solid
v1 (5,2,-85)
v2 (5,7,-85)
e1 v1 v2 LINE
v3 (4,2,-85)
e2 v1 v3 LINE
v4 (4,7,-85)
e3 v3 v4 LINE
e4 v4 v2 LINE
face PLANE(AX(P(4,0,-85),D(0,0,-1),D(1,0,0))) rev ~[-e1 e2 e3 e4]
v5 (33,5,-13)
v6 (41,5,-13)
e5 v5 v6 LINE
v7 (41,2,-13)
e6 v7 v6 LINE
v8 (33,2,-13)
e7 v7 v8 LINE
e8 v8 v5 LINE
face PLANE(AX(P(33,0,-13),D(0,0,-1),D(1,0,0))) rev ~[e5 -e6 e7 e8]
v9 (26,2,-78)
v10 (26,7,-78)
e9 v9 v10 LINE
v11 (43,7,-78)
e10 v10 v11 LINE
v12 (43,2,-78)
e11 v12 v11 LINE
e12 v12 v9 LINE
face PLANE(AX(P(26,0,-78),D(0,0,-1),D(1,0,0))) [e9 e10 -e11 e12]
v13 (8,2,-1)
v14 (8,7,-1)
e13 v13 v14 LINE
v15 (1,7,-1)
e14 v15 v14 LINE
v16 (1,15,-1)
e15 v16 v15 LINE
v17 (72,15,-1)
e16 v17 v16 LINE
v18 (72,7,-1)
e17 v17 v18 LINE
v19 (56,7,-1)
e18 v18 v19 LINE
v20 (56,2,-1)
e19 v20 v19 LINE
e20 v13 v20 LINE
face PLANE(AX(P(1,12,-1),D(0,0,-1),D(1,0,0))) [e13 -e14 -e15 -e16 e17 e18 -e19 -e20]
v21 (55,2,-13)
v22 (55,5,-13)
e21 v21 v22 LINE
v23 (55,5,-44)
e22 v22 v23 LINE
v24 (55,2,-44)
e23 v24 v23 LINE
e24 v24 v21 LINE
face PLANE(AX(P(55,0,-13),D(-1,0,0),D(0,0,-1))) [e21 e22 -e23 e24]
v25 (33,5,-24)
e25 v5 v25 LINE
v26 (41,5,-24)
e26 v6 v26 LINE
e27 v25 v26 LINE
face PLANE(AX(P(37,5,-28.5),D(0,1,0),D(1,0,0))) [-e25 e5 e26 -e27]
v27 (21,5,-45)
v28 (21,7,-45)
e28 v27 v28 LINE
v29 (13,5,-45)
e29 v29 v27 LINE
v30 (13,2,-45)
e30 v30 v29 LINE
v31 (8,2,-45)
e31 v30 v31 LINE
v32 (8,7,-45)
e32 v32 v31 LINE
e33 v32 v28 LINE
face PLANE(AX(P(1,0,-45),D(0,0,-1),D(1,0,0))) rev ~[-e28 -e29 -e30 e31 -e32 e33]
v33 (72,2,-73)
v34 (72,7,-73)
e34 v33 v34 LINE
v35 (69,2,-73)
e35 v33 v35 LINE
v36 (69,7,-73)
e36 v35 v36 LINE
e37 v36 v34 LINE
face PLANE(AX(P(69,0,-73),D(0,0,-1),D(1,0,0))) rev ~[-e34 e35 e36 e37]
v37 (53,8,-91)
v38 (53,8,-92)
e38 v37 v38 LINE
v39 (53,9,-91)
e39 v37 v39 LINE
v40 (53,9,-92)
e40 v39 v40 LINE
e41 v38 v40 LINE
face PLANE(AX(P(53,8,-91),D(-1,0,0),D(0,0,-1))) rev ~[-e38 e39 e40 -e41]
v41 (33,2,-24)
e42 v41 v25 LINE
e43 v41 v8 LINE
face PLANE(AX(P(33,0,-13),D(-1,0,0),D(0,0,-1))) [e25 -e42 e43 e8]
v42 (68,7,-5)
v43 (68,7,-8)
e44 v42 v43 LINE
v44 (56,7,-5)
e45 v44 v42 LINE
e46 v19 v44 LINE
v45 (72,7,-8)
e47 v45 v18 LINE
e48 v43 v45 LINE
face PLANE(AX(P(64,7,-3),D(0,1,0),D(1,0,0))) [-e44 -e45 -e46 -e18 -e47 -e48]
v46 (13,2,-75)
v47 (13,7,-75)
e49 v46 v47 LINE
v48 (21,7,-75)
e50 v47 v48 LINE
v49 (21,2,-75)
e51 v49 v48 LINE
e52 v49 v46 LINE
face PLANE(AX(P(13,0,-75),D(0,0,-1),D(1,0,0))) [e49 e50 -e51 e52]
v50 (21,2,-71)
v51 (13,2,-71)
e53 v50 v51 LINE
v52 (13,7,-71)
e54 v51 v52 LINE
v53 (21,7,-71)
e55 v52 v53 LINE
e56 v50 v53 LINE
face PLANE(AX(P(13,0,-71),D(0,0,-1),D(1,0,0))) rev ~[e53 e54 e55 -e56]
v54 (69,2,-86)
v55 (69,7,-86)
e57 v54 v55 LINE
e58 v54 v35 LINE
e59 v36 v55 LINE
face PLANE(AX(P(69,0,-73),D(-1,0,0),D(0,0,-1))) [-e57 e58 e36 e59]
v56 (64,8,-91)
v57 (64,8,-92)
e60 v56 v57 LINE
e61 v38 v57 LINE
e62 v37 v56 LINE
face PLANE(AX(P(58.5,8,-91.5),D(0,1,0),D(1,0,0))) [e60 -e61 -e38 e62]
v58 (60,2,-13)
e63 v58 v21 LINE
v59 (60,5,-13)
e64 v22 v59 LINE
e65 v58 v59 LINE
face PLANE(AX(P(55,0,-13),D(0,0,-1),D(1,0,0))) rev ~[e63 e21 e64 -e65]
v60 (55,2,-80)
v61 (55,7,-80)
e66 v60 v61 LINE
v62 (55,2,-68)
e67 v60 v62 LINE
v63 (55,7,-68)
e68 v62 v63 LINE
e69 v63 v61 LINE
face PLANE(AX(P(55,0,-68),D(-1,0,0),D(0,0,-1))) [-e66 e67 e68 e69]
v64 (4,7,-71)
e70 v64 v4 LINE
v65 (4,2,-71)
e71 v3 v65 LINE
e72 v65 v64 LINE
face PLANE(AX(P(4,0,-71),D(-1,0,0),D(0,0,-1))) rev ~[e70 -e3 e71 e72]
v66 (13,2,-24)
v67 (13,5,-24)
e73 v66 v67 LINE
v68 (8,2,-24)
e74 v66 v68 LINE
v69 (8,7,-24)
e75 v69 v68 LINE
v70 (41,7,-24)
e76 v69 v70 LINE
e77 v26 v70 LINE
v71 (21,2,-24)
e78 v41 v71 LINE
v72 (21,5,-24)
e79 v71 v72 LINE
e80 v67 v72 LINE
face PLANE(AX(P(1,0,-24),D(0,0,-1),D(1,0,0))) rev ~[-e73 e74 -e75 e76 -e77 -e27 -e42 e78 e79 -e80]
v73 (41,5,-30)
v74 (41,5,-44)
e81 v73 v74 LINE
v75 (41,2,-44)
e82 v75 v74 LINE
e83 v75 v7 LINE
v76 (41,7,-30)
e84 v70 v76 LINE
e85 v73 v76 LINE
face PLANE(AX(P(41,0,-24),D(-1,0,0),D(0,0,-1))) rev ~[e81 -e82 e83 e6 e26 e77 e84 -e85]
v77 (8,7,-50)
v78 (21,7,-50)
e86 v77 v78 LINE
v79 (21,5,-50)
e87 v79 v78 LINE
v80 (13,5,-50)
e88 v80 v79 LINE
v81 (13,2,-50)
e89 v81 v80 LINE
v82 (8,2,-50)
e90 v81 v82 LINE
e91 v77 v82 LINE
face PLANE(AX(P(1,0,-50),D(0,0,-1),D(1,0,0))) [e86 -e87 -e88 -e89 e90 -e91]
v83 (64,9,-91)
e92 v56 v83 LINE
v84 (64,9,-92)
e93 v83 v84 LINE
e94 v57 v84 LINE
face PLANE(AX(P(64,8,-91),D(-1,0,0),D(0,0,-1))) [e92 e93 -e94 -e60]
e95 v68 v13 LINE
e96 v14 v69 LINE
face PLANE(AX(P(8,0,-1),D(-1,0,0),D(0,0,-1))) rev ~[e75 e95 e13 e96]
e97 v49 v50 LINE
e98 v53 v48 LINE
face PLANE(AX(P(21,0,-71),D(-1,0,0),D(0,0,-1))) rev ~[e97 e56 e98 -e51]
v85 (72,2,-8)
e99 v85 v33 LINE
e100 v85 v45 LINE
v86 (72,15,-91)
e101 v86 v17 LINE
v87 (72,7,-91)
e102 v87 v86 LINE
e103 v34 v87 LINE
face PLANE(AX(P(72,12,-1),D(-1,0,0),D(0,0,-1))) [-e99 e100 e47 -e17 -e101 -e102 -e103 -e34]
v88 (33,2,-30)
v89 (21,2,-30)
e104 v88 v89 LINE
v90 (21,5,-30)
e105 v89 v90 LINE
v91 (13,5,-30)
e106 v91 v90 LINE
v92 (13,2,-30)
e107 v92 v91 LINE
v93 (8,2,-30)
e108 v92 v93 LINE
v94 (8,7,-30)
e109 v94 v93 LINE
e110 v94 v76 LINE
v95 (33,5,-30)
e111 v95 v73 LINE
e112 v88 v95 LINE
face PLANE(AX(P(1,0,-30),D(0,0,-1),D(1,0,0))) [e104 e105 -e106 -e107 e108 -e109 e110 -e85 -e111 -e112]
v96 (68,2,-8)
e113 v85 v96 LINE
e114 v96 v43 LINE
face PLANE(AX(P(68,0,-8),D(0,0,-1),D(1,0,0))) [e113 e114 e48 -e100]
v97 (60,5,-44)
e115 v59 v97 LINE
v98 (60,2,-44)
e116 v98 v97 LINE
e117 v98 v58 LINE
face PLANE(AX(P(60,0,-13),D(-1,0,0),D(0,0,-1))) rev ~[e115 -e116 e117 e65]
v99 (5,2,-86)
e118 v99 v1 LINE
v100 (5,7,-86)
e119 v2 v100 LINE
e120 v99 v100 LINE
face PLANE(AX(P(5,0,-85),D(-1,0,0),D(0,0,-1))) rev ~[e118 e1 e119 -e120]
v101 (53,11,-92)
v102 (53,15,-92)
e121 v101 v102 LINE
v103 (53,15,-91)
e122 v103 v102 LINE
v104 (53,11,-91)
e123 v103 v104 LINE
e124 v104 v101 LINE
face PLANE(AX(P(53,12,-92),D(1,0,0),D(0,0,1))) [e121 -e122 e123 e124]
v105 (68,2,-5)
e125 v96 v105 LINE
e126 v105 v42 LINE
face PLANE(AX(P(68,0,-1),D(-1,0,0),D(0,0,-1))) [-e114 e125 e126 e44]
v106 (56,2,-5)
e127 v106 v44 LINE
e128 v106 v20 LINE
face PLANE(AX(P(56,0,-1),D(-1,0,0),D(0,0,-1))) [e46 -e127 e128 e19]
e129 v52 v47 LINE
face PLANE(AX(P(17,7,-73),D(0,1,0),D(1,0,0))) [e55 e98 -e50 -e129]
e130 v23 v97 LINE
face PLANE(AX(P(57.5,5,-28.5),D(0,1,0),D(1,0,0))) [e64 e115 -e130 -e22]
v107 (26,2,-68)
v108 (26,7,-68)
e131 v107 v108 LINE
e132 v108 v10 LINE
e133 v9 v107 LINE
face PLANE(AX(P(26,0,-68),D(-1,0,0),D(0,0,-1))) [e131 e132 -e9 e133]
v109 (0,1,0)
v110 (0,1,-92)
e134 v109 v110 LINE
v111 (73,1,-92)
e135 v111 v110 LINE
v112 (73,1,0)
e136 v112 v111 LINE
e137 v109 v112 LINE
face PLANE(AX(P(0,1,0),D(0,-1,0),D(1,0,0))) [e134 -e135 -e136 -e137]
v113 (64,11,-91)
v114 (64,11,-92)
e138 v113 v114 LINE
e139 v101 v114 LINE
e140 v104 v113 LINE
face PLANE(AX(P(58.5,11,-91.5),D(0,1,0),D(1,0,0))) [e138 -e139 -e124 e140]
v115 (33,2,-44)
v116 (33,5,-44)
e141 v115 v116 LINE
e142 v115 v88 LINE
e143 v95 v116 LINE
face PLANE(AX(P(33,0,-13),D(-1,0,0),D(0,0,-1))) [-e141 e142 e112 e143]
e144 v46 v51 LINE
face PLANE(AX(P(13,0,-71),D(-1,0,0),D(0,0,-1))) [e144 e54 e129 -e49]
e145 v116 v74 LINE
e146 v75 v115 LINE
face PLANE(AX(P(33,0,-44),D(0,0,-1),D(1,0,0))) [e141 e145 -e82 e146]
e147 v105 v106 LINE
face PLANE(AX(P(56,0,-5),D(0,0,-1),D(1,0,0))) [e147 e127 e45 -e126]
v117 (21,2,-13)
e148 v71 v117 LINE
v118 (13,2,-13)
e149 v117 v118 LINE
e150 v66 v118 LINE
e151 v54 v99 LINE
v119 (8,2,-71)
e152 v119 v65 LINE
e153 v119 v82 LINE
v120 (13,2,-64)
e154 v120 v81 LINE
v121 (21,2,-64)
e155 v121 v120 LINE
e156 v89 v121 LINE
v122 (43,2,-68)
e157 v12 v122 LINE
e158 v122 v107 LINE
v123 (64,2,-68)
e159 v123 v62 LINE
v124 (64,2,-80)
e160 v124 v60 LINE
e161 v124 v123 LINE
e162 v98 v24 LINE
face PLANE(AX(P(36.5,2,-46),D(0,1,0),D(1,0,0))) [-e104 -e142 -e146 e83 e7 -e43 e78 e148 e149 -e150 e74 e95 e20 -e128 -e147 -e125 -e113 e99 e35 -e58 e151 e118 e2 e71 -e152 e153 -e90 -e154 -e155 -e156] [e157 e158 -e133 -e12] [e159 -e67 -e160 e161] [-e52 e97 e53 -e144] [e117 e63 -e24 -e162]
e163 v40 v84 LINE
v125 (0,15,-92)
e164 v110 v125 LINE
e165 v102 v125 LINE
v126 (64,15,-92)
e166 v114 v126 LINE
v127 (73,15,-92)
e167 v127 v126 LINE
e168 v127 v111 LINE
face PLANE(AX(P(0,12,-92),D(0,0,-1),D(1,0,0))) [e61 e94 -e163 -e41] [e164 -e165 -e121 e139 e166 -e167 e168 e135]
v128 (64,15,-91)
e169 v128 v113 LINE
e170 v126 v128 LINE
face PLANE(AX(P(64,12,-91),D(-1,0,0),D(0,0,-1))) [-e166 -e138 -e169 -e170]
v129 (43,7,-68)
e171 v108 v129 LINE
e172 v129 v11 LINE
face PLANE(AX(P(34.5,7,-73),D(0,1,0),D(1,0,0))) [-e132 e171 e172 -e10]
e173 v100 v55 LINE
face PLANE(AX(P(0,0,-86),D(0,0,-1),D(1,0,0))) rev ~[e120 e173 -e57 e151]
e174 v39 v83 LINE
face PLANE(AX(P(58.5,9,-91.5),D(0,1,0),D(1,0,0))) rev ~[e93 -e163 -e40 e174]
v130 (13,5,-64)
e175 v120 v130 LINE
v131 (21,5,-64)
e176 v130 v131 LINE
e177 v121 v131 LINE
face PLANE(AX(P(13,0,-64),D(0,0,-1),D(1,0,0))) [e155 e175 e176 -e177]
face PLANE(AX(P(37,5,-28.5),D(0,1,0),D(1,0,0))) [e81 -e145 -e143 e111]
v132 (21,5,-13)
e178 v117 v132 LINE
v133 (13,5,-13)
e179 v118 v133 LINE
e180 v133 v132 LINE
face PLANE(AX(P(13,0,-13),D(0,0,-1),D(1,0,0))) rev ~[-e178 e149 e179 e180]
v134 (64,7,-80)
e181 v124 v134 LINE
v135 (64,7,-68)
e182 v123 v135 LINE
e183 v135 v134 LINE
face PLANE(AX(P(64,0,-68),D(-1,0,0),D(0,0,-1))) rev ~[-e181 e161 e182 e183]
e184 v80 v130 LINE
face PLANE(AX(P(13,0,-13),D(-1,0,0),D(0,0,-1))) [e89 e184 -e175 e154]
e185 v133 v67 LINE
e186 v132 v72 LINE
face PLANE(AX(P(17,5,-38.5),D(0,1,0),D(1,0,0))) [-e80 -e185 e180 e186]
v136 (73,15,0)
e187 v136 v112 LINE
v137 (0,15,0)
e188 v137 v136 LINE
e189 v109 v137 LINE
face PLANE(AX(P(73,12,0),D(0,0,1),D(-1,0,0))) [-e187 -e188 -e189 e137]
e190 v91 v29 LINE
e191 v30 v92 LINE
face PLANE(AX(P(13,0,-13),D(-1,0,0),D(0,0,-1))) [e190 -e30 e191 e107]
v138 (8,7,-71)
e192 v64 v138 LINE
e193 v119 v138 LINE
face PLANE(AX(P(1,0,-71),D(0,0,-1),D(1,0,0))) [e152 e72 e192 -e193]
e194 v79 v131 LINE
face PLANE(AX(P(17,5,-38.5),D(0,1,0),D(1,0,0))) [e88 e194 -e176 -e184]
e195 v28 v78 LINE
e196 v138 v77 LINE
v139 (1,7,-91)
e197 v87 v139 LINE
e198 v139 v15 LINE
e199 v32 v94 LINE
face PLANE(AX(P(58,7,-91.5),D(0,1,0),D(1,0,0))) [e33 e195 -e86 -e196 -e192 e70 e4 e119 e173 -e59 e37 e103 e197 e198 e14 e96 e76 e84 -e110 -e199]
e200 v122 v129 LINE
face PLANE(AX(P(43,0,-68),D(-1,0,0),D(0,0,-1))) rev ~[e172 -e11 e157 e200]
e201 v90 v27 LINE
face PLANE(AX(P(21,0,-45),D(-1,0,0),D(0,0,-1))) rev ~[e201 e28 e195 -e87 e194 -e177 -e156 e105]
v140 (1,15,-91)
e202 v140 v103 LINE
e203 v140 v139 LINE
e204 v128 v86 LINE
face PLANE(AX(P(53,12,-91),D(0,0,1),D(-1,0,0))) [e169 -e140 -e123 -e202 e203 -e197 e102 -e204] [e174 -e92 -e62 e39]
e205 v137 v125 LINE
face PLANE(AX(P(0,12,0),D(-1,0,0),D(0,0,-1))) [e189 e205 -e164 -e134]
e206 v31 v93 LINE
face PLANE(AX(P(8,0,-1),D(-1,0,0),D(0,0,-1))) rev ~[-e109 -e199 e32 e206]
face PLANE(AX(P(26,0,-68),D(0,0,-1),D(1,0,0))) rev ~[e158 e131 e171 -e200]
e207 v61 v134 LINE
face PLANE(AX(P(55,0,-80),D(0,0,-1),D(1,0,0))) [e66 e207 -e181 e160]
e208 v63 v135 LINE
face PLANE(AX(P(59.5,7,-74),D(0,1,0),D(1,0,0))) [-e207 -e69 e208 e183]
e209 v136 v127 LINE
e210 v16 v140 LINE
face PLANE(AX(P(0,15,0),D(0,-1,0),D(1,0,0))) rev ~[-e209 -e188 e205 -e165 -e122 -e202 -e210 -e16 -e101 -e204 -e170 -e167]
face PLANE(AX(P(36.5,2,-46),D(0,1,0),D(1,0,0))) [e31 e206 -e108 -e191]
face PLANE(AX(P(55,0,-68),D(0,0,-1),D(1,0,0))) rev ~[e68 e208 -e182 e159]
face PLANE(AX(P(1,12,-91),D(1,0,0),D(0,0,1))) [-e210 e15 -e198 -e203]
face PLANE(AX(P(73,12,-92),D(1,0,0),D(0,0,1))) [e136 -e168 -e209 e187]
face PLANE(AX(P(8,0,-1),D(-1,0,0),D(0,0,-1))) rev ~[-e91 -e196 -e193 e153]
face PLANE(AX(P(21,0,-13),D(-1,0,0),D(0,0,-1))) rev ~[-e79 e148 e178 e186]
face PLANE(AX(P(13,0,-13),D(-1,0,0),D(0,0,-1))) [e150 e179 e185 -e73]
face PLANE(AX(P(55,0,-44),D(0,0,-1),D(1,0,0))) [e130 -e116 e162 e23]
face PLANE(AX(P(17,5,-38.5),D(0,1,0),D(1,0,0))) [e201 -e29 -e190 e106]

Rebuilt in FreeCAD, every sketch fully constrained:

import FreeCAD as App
import Part
import Sketcher
from FreeCAD import Vector
Q = App.Units.Quantity

doc = App.newDocument("Part")
body = doc.addObject("PartDesign::Body", "Body")

# Sketch on XZ plane
sketch1 = body.newObject("Sketcher::SketchObject", "Sketch")
sketch1.AttachmentSupport = (doc.getObject("XZ_Plane"), [""])
sketch1.MapMode = "FlatFace"
sketch1.addGeometry([
    Part.LineSegment(Vector(0, -92, 0), Vector(0, 0, 0)),
    Part.LineSegment(Vector(0, 0, 0), Vector(73, 0, 0)),
    Part.LineSegment(Vector(73, 0, 0), Vector(73, -92, 0)),
    Part.LineSegment(Vector(73, -92, 0), Vector(0, -92, 0)),
], False)
sketch1.addConstraint([
    Sketcher.Constraint("Coincident", 0, 2, 1, 1),
    Sketcher.Constraint("Coincident", 1, 2, 2, 1),
    Sketcher.Constraint("Coincident", 2, 2, 3, 1),
    Sketcher.Constraint("Coincident", 3, 2, 0, 1),
    Sketcher.Constraint("Vertical", 0),
    Sketcher.Constraint("Horizontal", 1),
    Sketcher.Constraint("Vertical", 2),
    Sketcher.Constraint("Horizontal", 3),
    Sketcher.Constraint("Coincident", 0, 2, -1, 1),
    Sketcher.Constraint("DistanceX", 1, 1, 1, 2, Q("73 mm")),
    Sketcher.Constraint("DistanceY", 0, 1, 0, 2, Q("92 mm")),
])
pad1 = body.newObject("PartDesign::Pad", "Pad")
pad1.Profile = sketch1
pad1.Length = 12
pad1.Reversed = True

# Sketch on XZ plane
sketch2 = body.newObject("Sketcher::SketchObject", "Sketch001")
sketch2.AttachmentSupport = (doc.getObject("XZ_Plane"), [""])
sketch2.MapMode = "FlatFace"
sketch2.AttachmentOffset = App.Placement(Vector(0, 0, -12), App.Rotation())
sketch2.addGeometry([
    Part.LineSegment(Vector(1, -91, 0), Vector(1, -1, 0)),
    Part.LineSegment(Vector(1, -1, 0), Vector(72, -1, 0)),
    Part.LineSegment(Vector(72, -1, 0), Vector(72, -91, 0)),
    Part.LineSegment(Vector(72, -91, 0), Vector(1, -91, 0)),
], False)
sketch2.addConstraint([
    Sketcher.Constraint("Coincident", 0, 2, 1, 1),
    Sketcher.Constraint("Coincident", 1, 2, 2, 1),
    Sketcher.Constraint("Coincident", 2, 2, 3, 1),
    Sketcher.Constraint("Coincident", 3, 2, 0, 1),
    Sketcher.Constraint("Vertical", 0),
    Sketcher.Constraint("Horizontal", 1),
    Sketcher.Constraint("Vertical", 2),
    Sketcher.Constraint("Horizontal", 3),
    Sketcher.Constraint("DistanceX", 1, 1, 1, 2, Q("71 mm")),
    Sketcher.Constraint("DistanceY", 0, 1, 0, 2, Q("90 mm")),
    Sketcher.Constraint("DistanceX", -1, 1, 0, 2, Q("1 mm")),
    Sketcher.Constraint("DistanceY", 0, 2, -1, 1, Q("1 mm")),
])
pocket1 = body.newObject("PartDesign::Pocket", "Pocket")
pocket1.Profile = sketch2
pocket1.Length = 10
pocket1.Reversed = True

# Sketch on XZ plane
sketch3 = body.newObject("Sketcher::SketchObject", "Sketch002")
sketch3.AttachmentSupport = (doc.getObject("XZ_Plane"), [""])
sketch3.MapMode = "FlatFace"
sketch3.addGeometry([
    Part.LineSegment(Vector(0, -92, 0), Vector(0, -86, 0)),
    Part.LineSegment(Vector(0, -86, 0), Vector(73, -86, 0)),
    Part.LineSegment(Vector(73, -86, 0), Vector(73, -92, 0)),
    Part.LineSegment(Vector(73, -92, 0), Vector(0, -92, 0)),
], False)
sketch3.addConstraint([
    Sketcher.Constraint("Coincident", 0, 2, 1, 1),
    Sketcher.Constraint("Coincident", 1, 2, 2, 1),
    Sketcher.Constraint("Coincident", 2, 2, 3, 1),
    Sketcher.Constraint("Coincident", 3, 2, 0, 1),
    Sketcher.Constraint("Vertical", 0),
    Sketcher.Constraint("Horizontal", 1),
    Sketcher.Constraint("Vertical", 2),
    Sketcher.Constraint("Horizontal", 3),
    Sketcher.Constraint("PointOnObject", 0, 2, -2),
    Sketcher.Constraint("DistanceX", 1, 1, 1, 2, Q("73 mm")),
    Sketcher.Constraint("DistanceY", 0, 1, 0, 2, Q("6 mm")),
    Sketcher.Constraint("DistanceY", 0, 2, -1, 1, Q("86 mm")),
])
pad2 = body.newObject("PartDesign::Pad", "Pad001")
pad2.Profile = sketch3
pad2.Length = 7
pad2.Reversed = True

# Sketch on XZ plane
sketch4 = body.newObject("Sketcher::SketchObject", "Sketch003")
sketch4.AttachmentSupport = (doc.getObject("XZ_Plane"), [""])
sketch4.MapMode = "FlatFace"
sketch4.addGeometry([
    Part.LineSegment(Vector(69, -92, 0), Vector(69, -73, 0)),
    Part.LineSegment(Vector(69, -73, 0), Vector(73, -73, 0)),
    Part.LineSegment(Vector(73, -73, 0), Vector(73, -92, 0)),
    Part.LineSegment(Vector(73, -92, 0), Vector(69, -92, 0)),
], False)
sketch4.addConstraint([
    Sketcher.Constraint("Coincident", 0, 2, 1, 1),
    Sketcher.Constraint("Coincident", 1, 2, 2, 1),
    Sketcher.Constraint("Coincident", 2, 2, 3, 1),
    Sketcher.Constraint("Coincident", 3, 2, 0, 1),
    Sketcher.Constraint("Vertical", 0),
    Sketcher.Constraint("Horizontal", 1),
    Sketcher.Constraint("Vertical", 2),
    Sketcher.Constraint("Horizontal", 3),
    Sketcher.Constraint("DistanceX", 1, 1, 1, 2, Q("4 mm")),
    Sketcher.Constraint("DistanceY", 0, 1, 0, 2, Q("19 mm")),
    Sketcher.Constraint("DistanceX", -1, 1, 0, 2, Q("69 mm")),
    Sketcher.Constraint("DistanceY", 0, 2, -1, 1, Q("73 mm")),
])
pad3 = body.newObject("PartDesign::Pad", "Pad002")
pad3.Profile = sketch4
pad3.Length = 7
pad3.Reversed = True

# Sketch on XZ plane
sketch5 = body.newObject("Sketcher::SketchObject", "Sketch004")
sketch5.AttachmentSupport = (doc.getObject("XZ_Plane"), [""])
sketch5.MapMode = "FlatFace"
sketch5.addGeometry([
    Part.LineSegment(Vector(0, -92, 0), Vector(0, -71, 0)),
    Part.LineSegment(Vector(0, -71, 0), Vector(4, -71, 0)),
    Part.LineSegment(Vector(4, -71, 0), Vector(4, -92, 0)),
    Part.LineSegment(Vector(4, -92, 0), Vector(0, -92, 0)),
], False)
sketch5.addConstraint([
    Sketcher.Constraint("Coincident", 0, 2, 1, 1),
    Sketcher.Constraint("Coincident", 1, 2, 2, 1),
    Sketcher.Constraint("Coincident", 2, 2, 3, 1),
    Sketcher.Constraint("Coincident", 3, 2, 0, 1),
    Sketcher.Constraint("Vertical", 0),
    Sketcher.Constraint("Horizontal", 1),
    Sketcher.Constraint("Vertical", 2),
    Sketcher.Constraint("Horizontal", 3),
    Sketcher.Constraint("PointOnObject", 0, 2, -2),
    Sketcher.Constraint("DistanceX", 1, 1, 1, 2, Q("4 mm")),
    Sketcher.Constraint("DistanceY", 0, 1, 0, 2, Q("21 mm")),
    Sketcher.Constraint("DistanceY", 0, 2, -1, 1, Q("71 mm")),
])
pad4 = body.newObject("PartDesign::Pad", "Pad003")
pad4.Profile = sketch5
pad4.Length = 7
pad4.Reversed = True

# Sketch on XZ plane
sketch6 = body.newObject("Sketcher::SketchObject", "Sketch005")
sketch6.AttachmentSupport = (doc.getObject("XZ_Plane"), [""])
sketch6.MapMode = "FlatFace"
sketch6.addGeometry([
    Part.LineSegment(Vector(1, -71, 0), Vector(1, -59, 0)),
    Part.LineSegment(Vector(1, -59, 0), Vector(8, -59, 0)),
    Part.LineSegment(Vector(8, -59, 0), Vector(8, -71, 0)),
    Part.LineSegment(Vector(8, -71, 0), Vector(1, -71, 0)),
], False)
sketch6.addConstraint([
    Sketcher.Constraint("Coincident", 0, 2, 1, 1),
    Sketcher.Constraint("Coincident", 1, 2, 2, 1),
    Sketcher.Constraint("Coincident", 2, 2, 3, 1),
    Sketcher.Constraint("Coincident", 3, 2, 0, 1),
    Sketcher.Constraint("Vertical", 0),
    Sketcher.Constraint("Horizontal", 1),
    Sketcher.Constraint("Vertical", 2),
    Sketcher.Constraint("Horizontal", 3),
    Sketcher.Constraint("DistanceX", 1, 1, 1, 2, Q("7 mm")),
    Sketcher.Constraint("DistanceY", 0, 1, 0, 2, Q("12 mm")),
    Sketcher.Constraint("DistanceX", -1, 1, 0, 2, Q("1 mm")),
    Sketcher.Constraint("DistanceY", 0, 2, -1, 1, Q("59 mm")),
])
pad5 = body.newObject("PartDesign::Pad", "Pad004")
pad5.Profile = sketch6
pad5.Length = 7
pad5.Reversed = True

# Sketch on XZ plane
sketch7 = body.newObject("Sketcher::SketchObject", "Sketch006")
sketch7.AttachmentSupport = (doc.getObject("XZ_Plane"), [""])
sketch7.MapMode = "FlatFace"
sketch7.addGeometry([
    Part.LineSegment(Vector(1, -59, 0), Vector(1, -1, 0)),
    Part.LineSegment(Vector(1, -1, 0), Vector(8, -1, 0)),
    Part.LineSegment(Vector(8, -1, 0), Vector(8, -59, 0)),
    Part.LineSegment(Vector(8, -59, 0), Vector(1, -59, 0)),
], False)
sketch7.addConstraint([
    Sketcher.Constraint("Coincident", 0, 2, 1, 1),
    Sketcher.Constraint("Coincident", 1, 2, 2, 1),
    Sketcher.Constraint("Coincident", 2, 2, 3, 1),
    Sketcher.Constraint("Coincident", 3, 2, 0, 1),
    Sketcher.Constraint("Vertical", 0),
    Sketcher.Constraint("Horizontal", 1),
    Sketcher.Constraint("Vertical", 2),
    Sketcher.Constraint("Horizontal", 3),
    Sketcher.Constraint("DistanceX", 1, 1, 1, 2, Q("7 mm")),
    Sketcher.Constraint("DistanceY", 0, 1, 0, 2, Q("58 mm")),
    Sketcher.Constraint("DistanceX", -1, 1, 0, 2, Q("1 mm")),
    Sketcher.Constraint("DistanceY", 0, 2, -1, 1, Q("1 mm")),
])
pad6 = body.newObject("PartDesign::Pad", "Pad005")
pad6.Profile = sketch7
pad6.Length = 7
pad6.Reversed = True

# Sketch on XZ plane
sketch8 = body.newObject("Sketcher::SketchObject", "Sketch007")
sketch8.AttachmentSupport = (doc.getObject("XZ_Plane"), [""])
sketch8.MapMode = "FlatFace"
sketch8.addGeometry([
    Part.LineSegment(Vector(1, -30, 0), Vector(1, -24, 0)),
    Part.LineSegment(Vector(1, -24, 0), Vector(41, -24, 0)),
    Part.LineSegment(Vector(41, -24, 0), Vector(41, -30, 0)),
    Part.LineSegment(Vector(41, -30, 0), Vector(1, -30, 0)),
], False)
sketch8.addConstraint([
    Sketcher.Constraint("Coincident", 0, 2, 1, 1),
    Sketcher.Constraint("Coincident", 1, 2, 2, 1),
    Sketcher.Constraint("Coincident", 2, 2, 3, 1),
    Sketcher.Constraint("Coincident", 3, 2, 0, 1),
    Sketcher.Constraint("Vertical", 0),
    Sketcher.Constraint("Horizontal", 1),
    Sketcher.Constraint("Vertical", 2),
    Sketcher.Constraint("Horizontal", 3),
    Sketcher.Constraint("DistanceX", 1, 1, 1, 2, Q("40 mm")),
    Sketcher.Constraint("DistanceY", 0, 1, 0, 2, Q("6 mm")),
    Sketcher.Constraint("DistanceX", -1, 1, 0, 2, Q("1 mm")),
    Sketcher.Constraint("DistanceY", 0, 2, -1, 1, Q("24 mm")),
])
pad7 = body.newObject("PartDesign::Pad", "Pad006")
pad7.Profile = sketch8
pad7.Length = 7
pad7.Reversed = True

# Sketch on XZ plane
sketch9 = body.newObject("Sketcher::SketchObject", "Sketch008")
sketch9.AttachmentSupport = (doc.getObject("XZ_Plane"), [""])
sketch9.MapMode = "FlatFace"
sketch9.addGeometry([
    Part.LineSegment(Vector(1, -50, 0), Vector(1, -45, 0)),
    Part.LineSegment(Vector(1, -45, 0), Vector(21, -45, 0)),
    Part.LineSegment(Vector(21, -45, 0), Vector(21, -50, 0)),
    Part.LineSegment(Vector(21, -50, 0), Vector(1, -50, 0)),
], False)
sketch9.addConstraint([
    Sketcher.Constraint("Coincident", 0, 2, 1, 1),
    Sketcher.Constraint("Coincident", 1, 2, 2, 1),
    Sketcher.Constraint("Coincident", 2, 2, 3, 1),
    Sketcher.Constraint("Coincident", 3, 2, 0, 1),
    Sketcher.Constraint("Vertical", 0),
    Sketcher.Constraint("Horizontal", 1),
    Sketcher.Constraint("Vertical", 2),
    Sketcher.Constraint("Horizontal", 3),
    Sketcher.Constraint("DistanceX", 1, 1, 1, 2, Q("20 mm")),
    Sketcher.Constraint("DistanceY", 0, 1, 0, 2, Q("5 mm")),
    Sketcher.Constraint("DistanceX", -1, 1, 0, 2, Q("1 mm")),
    Sketcher.Constraint("DistanceY", 0, 2, -1, 1, Q("45 mm")),
])
pad8 = body.newObject("PartDesign::Pad", "Pad007")
pad8.Profile = sketch9
pad8.Length = 7
pad8.Reversed = True

# Sketch on XZ plane
sketch10 = body.newObject("Sketcher::SketchObject", "Sketch009")
sketch10.AttachmentSupport = (doc.getObject("XZ_Plane"), [""])
sketch10.MapMode = "FlatFace"
sketch10.addGeometry([
    Part.LineSegment(Vector(56, -5, 0), Vector(56, -1, 0)),
    Part.LineSegment(Vector(56, -1, 0), Vector(72, -1, 0)),
    Part.LineSegment(Vector(72, -1, 0), Vector(72, -5, 0)),
    Part.LineSegment(Vector(72, -5, 0), Vector(56, -5, 0)),
], False)
sketch10.addConstraint([
    Sketcher.Constraint("Coincident", 0, 2, 1, 1),
    Sketcher.Constraint("Coincident", 1, 2, 2, 1),
    Sketcher.Constraint("Coincident", 2, 2, 3, 1),
    Sketcher.Constraint("Coincident", 3, 2, 0, 1),
    Sketcher.Constraint("Vertical", 0),
    Sketcher.Constraint("Horizontal", 1),
    Sketcher.Constraint("Vertical", 2),
    Sketcher.Constraint("Horizontal", 3),
    Sketcher.Constraint("DistanceX", 1, 1, 1, 2, Q("16 mm")),
    Sketcher.Constraint("DistanceY", 0, 1, 0, 2, Q("4 mm")),
    Sketcher.Constraint("DistanceX", -1, 1, 0, 2, Q("56 mm")),
    Sketcher.Constraint("DistanceY", 0, 2, -1, 1, Q("1 mm")),
])
pad9 = body.newObject("PartDesign::Pad", "Pad008")
pad9.Profile = sketch10
pad9.Length = 7
pad9.Reversed = True

# Sketch on XZ plane
sketch11 = body.newObject("Sketcher::SketchObject", "Sketch010")
sketch11.AttachmentSupport = (doc.getObject("XZ_Plane"), [""])
sketch11.MapMode = "FlatFace"
sketch11.addGeometry([
    Part.LineSegment(Vector(68, -8, 0), Vector(68, -1, 0)),
    Part.LineSegment(Vector(68, -1, 0), Vector(72, -1, 0)),
    Part.LineSegment(Vector(72, -1, 0), Vector(72, -8, 0)),
    Part.LineSegment(Vector(72, -8, 0), Vector(68, -8, 0)),
], False)
sketch11.addConstraint([
    Sketcher.Constraint("Coincident", 0, 2, 1, 1),
    Sketcher.Constraint("Coincident", 1, 2, 2, 1),
    Sketcher.Constraint("Coincident", 2, 2, 3, 1),
    Sketcher.Constraint("Coincident", 3, 2, 0, 1),
    Sketcher.Constraint("Vertical", 0),
    Sketcher.Constraint("Horizontal", 1),
    Sketcher.Constraint("Vertical", 2),
    Sketcher.Constraint("Horizontal", 3),
    Sketcher.Constraint("DistanceX", 1, 1, 1, 2, Q("4 mm")),
    Sketcher.Constraint("DistanceY", 0, 1, 0, 2, Q("7 mm")),
    Sketcher.Constraint("DistanceX", -1, 1, 0, 2, Q("68 mm")),
    Sketcher.Constraint("DistanceY", 0, 2, -1, 1, Q("1 mm")),
])
pad10 = body.newObject("PartDesign::Pad", "Pad009")
pad10.Profile = sketch11
pad10.Length = 7
pad10.Reversed = True

# Sketch on XZ plane
sketch12 = body.newObject("Sketcher::SketchObject", "Sketch011")
sketch12.AttachmentSupport = (doc.getObject("XZ_Plane"), [""])
sketch12.MapMode = "FlatFace"
sketch12.addGeometry([
    Part.LineSegment(Vector(55, -44, 0), Vector(55, -13, 0)),
    Part.LineSegment(Vector(55, -13, 0), Vector(60, -13, 0)),
    Part.LineSegment(Vector(60, -13, 0), Vector(60, -44, 0)),
    Part.LineSegment(Vector(60, -44, 0), Vector(55, -44, 0)),
], False)
sketch12.addConstraint([
    Sketcher.Constraint("Coincident", 0, 2, 1, 1),
    Sketcher.Constraint("Coincident", 1, 2, 2, 1),
    Sketcher.Constraint("Coincident", 2, 2, 3, 1),
    Sketcher.Constraint("Coincident", 3, 2, 0, 1),
    Sketcher.Constraint("Vertical", 0),
    Sketcher.Constraint("Horizontal", 1),
    Sketcher.Constraint("Vertical", 2),
    Sketcher.Constraint("Horizontal", 3),
    Sketcher.Constraint("DistanceX", 1, 1, 1, 2, Q("5 mm")),
    Sketcher.Constraint("DistanceY", 0, 1, 0, 2, Q("31 mm")),
    Sketcher.Constraint("DistanceX", -1, 1, 0, 2, Q("55 mm")),
    Sketcher.Constraint("DistanceY", 0, 2, -1, 1, Q("13 mm")),
])
pad11 = body.newObject("PartDesign::Pad", "Pad010")
pad11.Profile = sketch12
pad11.Length = 5
pad11.Reversed = True

# Sketch on XZ plane
sketch13 = body.newObject("Sketcher::SketchObject", "Sketch012")
sketch13.AttachmentSupport = (doc.getObject("XZ_Plane"), [""])
sketch13.MapMode = "FlatFace"
sketch13.addGeometry([
    Part.LineSegment(Vector(55, -80, 0), Vector(55, -68, 0)),
    Part.LineSegment(Vector(55, -68, 0), Vector(64, -68, 0)),
    Part.LineSegment(Vector(64, -68, 0), Vector(64, -80, 0)),
    Part.LineSegment(Vector(64, -80, 0), Vector(55, -80, 0)),
], False)
sketch13.addConstraint([
    Sketcher.Constraint("Coincident", 0, 2, 1, 1),
    Sketcher.Constraint("Coincident", 1, 2, 2, 1),
    Sketcher.Constraint("Coincident", 2, 2, 3, 1),
    Sketcher.Constraint("Coincident", 3, 2, 0, 1),
    Sketcher.Constraint("Vertical", 0),
    Sketcher.Constraint("Horizontal", 1),
    Sketcher.Constraint("Vertical", 2),
    Sketcher.Constraint("Horizontal", 3),
    Sketcher.Constraint("DistanceX", 1, 1, 1, 2, Q("9 mm")),
    Sketcher.Constraint("DistanceY", 0, 1, 0, 2, Q("12 mm")),
    Sketcher.Constraint("DistanceX", -1, 1, 0, 2, Q("55 mm")),
    Sketcher.Constraint("DistanceY", 0, 2, -1, 1, Q("68 mm")),
])
pad12 = body.newObject("PartDesign::Pad", "Pad011")
pad12.Profile = sketch13
pad12.Length = 7
pad12.Reversed = True

# Sketch on XZ plane
sketch14 = body.newObject("Sketcher::SketchObject", "Sketch013")
sketch14.AttachmentSupport = (doc.getObject("XZ_Plane"), [""])
sketch14.MapMode = "FlatFace"
sketch14.addGeometry([
    Part.LineSegment(Vector(26, -78, 0), Vector(26, -68, 0)),
    Part.LineSegment(Vector(26, -68, 0), Vector(43, -68, 0)),
    Part.LineSegment(Vector(43, -68, 0), Vector(43, -78, 0)),
    Part.LineSegment(Vector(43, -78, 0), Vector(26, -78, 0)),
], False)
sketch14.addConstraint([
    Sketcher.Constraint("Coincident", 0, 2, 1, 1),
    Sketcher.Constraint("Coincident", 1, 2, 2, 1),
    Sketcher.Constraint("Coincident", 2, 2, 3, 1),
    Sketcher.Constraint("Coincident", 3, 2, 0, 1),
    Sketcher.Constraint("Vertical", 0),
    Sketcher.Constraint("Horizontal", 1),
    Sketcher.Constraint("Vertical", 2),
    Sketcher.Constraint("Horizontal", 3),
    Sketcher.Constraint("DistanceX", 1, 1, 1, 2, Q("17 mm")),
    Sketcher.Constraint("DistanceY", 0, 1, 0, 2, Q("10 mm")),
    Sketcher.Constraint("DistanceX", -1, 1, 0, 2, Q("26 mm")),
    Sketcher.Constraint("DistanceY", 0, 2, -1, 1, Q("68 mm")),
])
pad13 = body.newObject("PartDesign::Pad", "Pad012")
pad13.Profile = sketch14
pad13.Length = 7
pad13.Reversed = True

# Sketch on XZ plane
sketch15 = body.newObject("Sketcher::SketchObject", "Sketch014")
sketch15.AttachmentSupport = (doc.getObject("XZ_Plane"), [""])
sketch15.MapMode = "FlatFace"
sketch15.addGeometry([
    Part.LineSegment(Vector(13, -75, 0), Vector(13, -71, 0)),
    Part.LineSegment(Vector(13, -71, 0), Vector(21, -71, 0)),
    Part.LineSegment(Vector(21, -71, 0), Vector(21, -75, 0)),
    Part.LineSegment(Vector(21, -75, 0), Vector(13, -75, 0)),
], False)
sketch15.addConstraint([
    Sketcher.Constraint("Coincident", 0, 2, 1, 1),
    Sketcher.Constraint("Coincident", 1, 2, 2, 1),
    Sketcher.Constraint("Coincident", 2, 2, 3, 1),
    Sketcher.Constraint("Coincident", 3, 2, 0, 1),
    Sketcher.Constraint("Vertical", 0),
    Sketcher.Constraint("Horizontal", 1),
    Sketcher.Constraint("Vertical", 2),
    Sketcher.Constraint("Horizontal", 3),
    Sketcher.Constraint("DistanceX", 1, 1, 1, 2, Q("8 mm")),
    Sketcher.Constraint("DistanceY", 0, 1, 0, 2, Q("4 mm")),
    Sketcher.Constraint("DistanceX", -1, 1, 0, 2, Q("13 mm")),
    Sketcher.Constraint("DistanceY", 0, 2, -1, 1, Q("71 mm")),
])
pad14 = body.newObject("PartDesign::Pad", "Pad013")
pad14.Profile = sketch15
pad14.Length = 7
pad14.Reversed = True

# Sketch on XZ plane
sketch16 = body.newObject("Sketcher::SketchObject", "Sketch015")
sketch16.AttachmentSupport = (doc.getObject("XZ_Plane"), [""])
sketch16.MapMode = "FlatFace"
sketch16.addGeometry([
    Part.LineSegment(Vector(33, -44, 0), Vector(33, -13, 0)),
    Part.LineSegment(Vector(33, -13, 0), Vector(41, -13, 0)),
    Part.LineSegment(Vector(41, -13, 0), Vector(41, -44, 0)),
    Part.LineSegment(Vector(41, -44, 0), Vector(33, -44, 0)),
], False)
sketch16.addConstraint([
    Sketcher.Constraint("Coincident", 0, 2, 1, 1),
    Sketcher.Constraint("Coincident", 1, 2, 2, 1),
    Sketcher.Constraint("Coincident", 2, 2, 3, 1),
    Sketcher.Constraint("Coincident", 3, 2, 0, 1),
    Sketcher.Constraint("Vertical", 0),
    Sketcher.Constraint("Horizontal", 1),
    Sketcher.Constraint("Vertical", 2),
    Sketcher.Constraint("Horizontal", 3),
    Sketcher.Constraint("DistanceX", 1, 1, 1, 2, Q("8 mm")),
    Sketcher.Constraint("DistanceY", 0, 1, 0, 2, Q("31 mm")),
    Sketcher.Constraint("DistanceX", -1, 1, 0, 2, Q("33 mm")),
    Sketcher.Constraint("DistanceY", 0, 2, -1, 1, Q("13 mm")),
])
pad15 = body.newObject("PartDesign::Pad", "Pad014")
pad15.Profile = sketch16
pad15.Length = 5
pad15.Reversed = True

# Sketch on XZ plane
sketch17 = body.newObject("Sketcher::SketchObject", "Sketch016")
sketch17.AttachmentSupport = (doc.getObject("XZ_Plane"), [""])
sketch17.MapMode = "FlatFace"
sketch17.AttachmentOffset = App.Placement(Vector(0, 0, -12), App.Rotation())
sketch17.addGeometry([
    Part.LineSegment(Vector(53, -92, 0), Vector(53, -91, 0)),
    Part.LineSegment(Vector(53, -91, 0), Vector(63, -91, 0)),
    Part.LineSegment(Vector(63, -91, 0), Vector(63, -92, 0)),
    Part.LineSegment(Vector(63, -92, 0), Vector(53, -92, 0)),
], False)
sketch17.addConstraint([
    Sketcher.Constraint("Coincident", 0, 2, 1, 1),
    Sketcher.Constraint("Coincident", 1, 2, 2, 1),
    Sketcher.Constraint("Coincident", 2, 2, 3, 1),
    Sketcher.Constraint("Coincident", 3, 2, 0, 1),
    Sketcher.Constraint("Vertical", 0),
    Sketcher.Constraint("Horizontal", 1),
    Sketcher.Constraint("Vertical", 2),
    Sketcher.Constraint("Horizontal", 3),
    Sketcher.Constraint("DistanceX", 1, 1, 1, 2, Q("10 mm")),
    Sketcher.Constraint("DistanceY", 0, 1, 0, 2, Q("1 mm")),
    Sketcher.Constraint("DistanceX", -1, 1, 0, 2, Q("53 mm")),
    Sketcher.Constraint("DistanceY", 0, 2, -1, 1, Q("91 mm")),
])
pocket2 = body.newObject("PartDesign::Pocket", "Pocket001")
pocket2.Profile = sketch17
pocket2.Length = 5
pocket2.Reversed = True

# Sketch on XZ plane
sketch18 = body.newObject("Sketcher::SketchObject", "Sketch017")
sketch18.AttachmentSupport = (doc.getObject("XZ_Plane"), [""])
sketch18.MapMode = "FlatFace"
sketch18.addGeometry([
    Part.LineSegment(Vector(13, -64, 0), Vector(13, -13, 0)),
    Part.LineSegment(Vector(13, -13, 0), Vector(21, -13, 0)),
    Part.LineSegment(Vector(21, -13, 0), Vector(21, -64, 0)),
    Part.LineSegment(Vector(21, -64, 0), Vector(13, -64, 0)),
], False)
sketch18.addConstraint([
    Sketcher.Constraint("Coincident", 0, 2, 1, 1),
    Sketcher.Constraint("Coincident", 1, 2, 2, 1),
    Sketcher.Constraint("Coincident", 2, 2, 3, 1),
    Sketcher.Constraint("Coincident", 3, 2, 0, 1),
    Sketcher.Constraint("Vertical", 0),
    Sketcher.Constraint("Horizontal", 1),
    Sketcher.Constraint("Vertical", 2),
    Sketcher.Constraint("Horizontal", 3),
    Sketcher.Constraint("DistanceX", 1, 1, 1, 2, Q("8 mm")),
    Sketcher.Constraint("DistanceY", 0, 1, 0, 2, Q("51 mm")),
    Sketcher.Constraint("DistanceX", -1, 1, 0, 2, Q("13 mm")),
    Sketcher.Constraint("DistanceY", 0, 2, -1, 1, Q("13 mm")),
])
pad16 = body.newObject("PartDesign::Pad", "Pad015")
pad16.Profile = sketch18
pad16.Length = 5
pad16.Reversed = True

# Sketch on XZ plane
sketch19 = body.newObject("Sketcher::SketchObject", "Sketch018")
sketch19.AttachmentSupport = (doc.getObject("XZ_Plane"), [""])
sketch19.MapMode = "FlatFace"
sketch19.AttachmentOffset = App.Placement(Vector(0, 0, -12), App.Rotation())
sketch19.addGeometry([
    Part.LineSegment(Vector(53, -92, 0), Vector(53, -91, 0)),
    Part.LineSegment(Vector(53, -91, 0), Vector(63, -91, 0)),
    Part.LineSegment(Vector(63, -91, 0), Vector(63, -92, 0)),
    Part.LineSegment(Vector(63, -92, 0), Vector(53, -92, 0)),
], False)
sketch19.addConstraint([
    Sketcher.Constraint("Coincident", 0, 2, 1, 1),
    Sketcher.Constraint("Coincident", 1, 2, 2, 1),
    Sketcher.Constraint("Coincident", 2, 2, 3, 1),
    Sketcher.Constraint("Coincident", 3, 2, 0, 1),
    Sketcher.Constraint("Vertical", 0),
    Sketcher.Constraint("Horizontal", 1),
    Sketcher.Constraint("Vertical", 2),
    Sketcher.Constraint("Horizontal", 3),
    Sketcher.Constraint("DistanceX", 1, 1, 1, 2, Q("10 mm")),
    Sketcher.Constraint("DistanceY", 0, 1, 0, 2, Q("1 mm")),
    Sketcher.Constraint("DistanceX", -1, 1, 0, 2, Q("53 mm")),
    Sketcher.Constraint("DistanceY", 0, 2, -1, 1, Q("91 mm")),
])
pad17 = body.newObject("PartDesign::Pad", "Pad016")
pad17.Profile = sketch19
pad17.Length = 10

# Sketch on XZ plane
sketch20 = body.newObject("Sketcher::SketchObject", "Sketch019")
sketch20.AttachmentSupport = (doc.getObject("XZ_Plane"), [""])
sketch20.MapMode = "FlatFace"
sketch20.AttachmentOffset = App.Placement(Vector(0, 0, -12), App.Rotation())
sketch20.addGeometry([
    Part.LineSegment(Vector(53, -92, 0), Vector(53, -91, 0)),
    Part.LineSegment(Vector(53, -91, 0), Vector(64, -91, 0)),
    Part.LineSegment(Vector(64, -91, 0), Vector(64, -92, 0)),
    Part.LineSegment(Vector(64, -92, 0), Vector(53, -92, 0)),
], False)
sketch20.addConstraint([
    Sketcher.Constraint("Coincident", 0, 2, 1, 1),
    Sketcher.Constraint("Coincident", 1, 2, 2, 1),
    Sketcher.Constraint("Coincident", 2, 2, 3, 1),
    Sketcher.Constraint("Coincident", 3, 2, 0, 1),
    Sketcher.Constraint("Vertical", 0),
    Sketcher.Constraint("Horizontal", 1),
    Sketcher.Constraint("Vertical", 2),
    Sketcher.Constraint("Horizontal", 3),
    Sketcher.Constraint("DistanceX", 1, 1, 1, 2, Q("11 mm")),
    Sketcher.Constraint("DistanceY", 0, 1, 0, 2, Q("1 mm")),
    Sketcher.Constraint("DistanceX", -1, 1, 0, 2, Q("53 mm")),
    Sketcher.Constraint("DistanceY", 0, 2, -1, 1, Q("91 mm")),
])
pocket3 = body.newObject("PartDesign::Pocket", "Pocket002")
pocket3.Profile = sketch20
pocket3.Length = 1
pocket3.Reversed = True

# Sketch on XZ plane
sketch21 = body.newObject("Sketcher::SketchObject", "Sketch020")
sketch21.AttachmentSupport = (doc.getObject("XZ_Plane"), [""])
sketch21.MapMode = "FlatFace"
sketch21.AttachmentOffset = App.Placement(Vector(0, 0, -8), App.Rotation())
sketch21.addGeometry([
    Part.LineSegment(Vector(53, -92, 0), Vector(53, -91, 0)),
    Part.LineSegment(Vector(53, -91, 0), Vector(64, -91, 0)),
    Part.LineSegment(Vector(64, -91, 0), Vector(64, -92, 0)),
    Part.LineSegment(Vector(64, -92, 0), Vector(53, -92, 0)),
], False)
sketch21.addConstraint([
    Sketcher.Constraint("Coincident", 0, 2, 1, 1),
    Sketcher.Constraint("Coincident", 1, 2, 2, 1),
    Sketcher.Constraint("Coincident", 2, 2, 3, 1),
    Sketcher.Constraint("Coincident", 3, 2, 0, 1),
    Sketcher.Constraint("Vertical", 0),
    Sketcher.Constraint("Horizontal", 1),
    Sketcher.Constraint("Vertical", 2),
    Sketcher.Constraint("Horizontal", 3),
    Sketcher.Constraint("DistanceX", 1, 1, 1, 2, Q("11 mm")),
    Sketcher.Constraint("DistanceY", 0, 1, 0, 2, Q("1 mm")),
    Sketcher.Constraint("DistanceX", -1, 1, 0, 2, Q("53 mm")),
    Sketcher.Constraint("DistanceY", 0, 2, -1, 1, Q("91 mm")),
])
pocket4 = body.newObject("PartDesign::Pocket", "Pocket003")
pocket4.Profile = sketch21
pocket4.Length = 1

# Sketch on XZ plane
sketch22 = body.newObject("Sketcher::SketchObject", "Sketch021")
sketch22.AttachmentSupport = (doc.getObject("XZ_Plane"), [""])
sketch22.MapMode = "FlatFace"
sketch22.addGeometry([
    Part.LineSegment(Vector(4, -86, 0), Vector(4, -85, 0)),
    Part.LineSegment(Vector(4, -85, 0), Vector(5, -85, 0)),
    Part.LineSegment(Vector(5, -85, 0), Vector(5, -86, 0)),
    Part.LineSegment(Vector(5, -86, 0), Vector(4, -86, 0)),
], False)
sketch22.addConstraint([
    Sketcher.Constraint("Coincident", 0, 2, 1, 1),
    Sketcher.Constraint("Coincident", 1, 2, 2, 1),
    Sketcher.Constraint("Coincident", 2, 2, 3, 1),
    Sketcher.Constraint("Coincident", 3, 2, 0, 1),
    Sketcher.Constraint("Vertical", 0),
    Sketcher.Constraint("Horizontal", 1),
    Sketcher.Constraint("Vertical", 2),
    Sketcher.Constraint("Horizontal", 3),
    Sketcher.Constraint("Equal", 3, 0),
    Sketcher.Constraint("DistanceX", 1, 1, 1, 2, Q("1 mm")),
    Sketcher.Constraint("DistanceX", -1, 1, 0, 2, Q("4 mm")),
    Sketcher.Constraint("DistanceY", 0, 2, -1, 1, Q("85 mm")),
])
pad18 = body.newObject("PartDesign::Pad", "Pad017")
pad18.Profile = sketch22
pad18.Length = 7
pad18.Reversed = True

# Sketch on XZ plane
sketch23 = body.newObject("Sketcher::SketchObject", "Sketch022")
sketch23.AttachmentSupport = (doc.getObject("XZ_Plane"), [""])
sketch23.MapMode = "FlatFace"
sketch23.AttachmentOffset = App.Placement(Vector(0, 0, -12), App.Rotation())
sketch23.addGeometry([
    Part.Circle(Vector(4, -5, 0), Vector(0, 0, 1), 1),
    Part.Circle(Vector(70, -6, 0), Vector(0, 0, 1), 1),
    Part.Circle(Vector(70, -87, 0), Vector(0, 0, 1), 1),
    Part.Circle(Vector(4, -87, 0), Vector(0, 0, 1), 1),
], False)
sketch23.addConstraint([
    Sketcher.Constraint("Equal", 0, 1),
    Sketcher.Constraint("Equal", 1, 2),
    Sketcher.Constraint("Equal", 2, 3),
    Sketcher.Constraint("Horizontal", 2, 3, 3, 3),
    Sketcher.Constraint("Vertical", 1, 3, 2, 3),
    Sketcher.Constraint("Vertical", 0, 3, 3, 3),
    Sketcher.Constraint("Diameter", 0, Q("2 mm")),
    Sketcher.Constraint("DistanceX", -1, 1, 0, 3, Q("4 mm")),
    Sketcher.Constraint("DistanceY", 0, 3, -1, 1, Q("5 mm")),
    Sketcher.Constraint("DistanceX", -1, 1, 1, 3, Q("70 mm")),
    Sketcher.Constraint("DistanceY", 1, 3, -1, 1, Q("6 mm")),
    Sketcher.Constraint("DistanceY", 2, 3, -1, 1, Q("87 mm")),
])
pocket5 = body.newObject("PartDesign::Pocket", "Pocket004")
pocket5.Profile = sketch23
pocket5.Length = 9
pocket5.Reversed = True

# Sketch on XZ plane
sketch24 = body.newObject("Sketcher::SketchObject", "Sketch023")
sketch24.AttachmentSupport = (doc.getObject("XZ_Plane"), [""])
sketch24.MapMode = "FlatFace"
sketch24.AttachmentOffset = App.Placement(Vector(0, 0, -12), App.Rotation())
sketch24.addGeometry([
    Part.LineSegment(Vector(53, -91, 0), Vector(53, -92, 0)),  # 0
    Part.LineSegment(Vector(53, -92, 0), Vector(0, -92, 0)),  # 1
    Part.LineSegment(Vector(0, -92, 0), Vector(0, 0, 0)),  # 2
    Part.LineSegment(Vector(0, 0, 0), Vector(73, 0, 0)),  # 3
    Part.LineSegment(Vector(73, 0, 0), Vector(73, -92, 0)),  # 4
    Part.LineSegment(Vector(73, -92, 0), Vector(64, -92, 0)),  # 5
    Part.LineSegment(Vector(64, -92, 0), Vector(64, -91, 0)),  # 6
    Part.LineSegment(Vector(64, -91, 0), Vector(72, -91, 0)),  # 7
    Part.LineSegment(Vector(72, -91, 0), Vector(72, -1, 0)),  # 8
    Part.LineSegment(Vector(72, -1, 0), Vector(1, -1, 0)),  # 9
    Part.LineSegment(Vector(1, -1, 0), Vector(1, -91, 0)),  # 10
    Part.LineSegment(Vector(1, -91, 0), Vector(53, -91, 0)),  # 11
], False)
sketch24.addConstraint([
    Sketcher.Constraint("Coincident", 0, 2, 1, 1),
    Sketcher.Constraint("Coincident", 1, 2, 2, 1),
    Sketcher.Constraint("Coincident", 2, 2, 3, 1),
    Sketcher.Constraint("Coincident", 3, 2, 4, 1),
    Sketcher.Constraint("Coincident", 4, 2, 5, 1),
    Sketcher.Constraint("Coincident", 5, 2, 6, 1),
    Sketcher.Constraint("Coincident", 6, 2, 7, 1),
    Sketcher.Constraint("Coincident", 7, 2, 8, 1),
    Sketcher.Constraint("Coincident", 8, 2, 9, 1),
    Sketcher.Constraint("Coincident", 9, 2, 10, 1),
    Sketcher.Constraint("Coincident", 10, 2, 11, 1),
    Sketcher.Constraint("Coincident", 11, 2, 0, 1),
    Sketcher.Constraint("Vertical", 0),
    Sketcher.Constraint("Horizontal", 1),
    Sketcher.Constraint("Vertical", 2),
    Sketcher.Constraint("Horizontal", 3),
    Sketcher.Constraint("Vertical", 4),
    Sketcher.Constraint("Horizontal", 5),
    Sketcher.Constraint("Vertical", 6),
    Sketcher.Constraint("Horizontal", 7),
    Sketcher.Constraint("Vertical", 8),
    Sketcher.Constraint("Horizontal", 9),
    Sketcher.Constraint("Vertical", 10),
    Sketcher.Constraint("Horizontal", 11),
    Sketcher.Constraint("Coincident", 2, 2, -1, 1),
    Sketcher.Constraint("Horizontal", 1, 2, 4, 2),
    Sketcher.Constraint("Horizontal", 7, 2, 10, 2),
    Sketcher.Constraint("DistanceX", 1, 2, 1, 1, Q("53 mm")),
    Sketcher.Constraint("DistanceX", 3, 1, 3, 2, Q("73 mm")),
    Sketcher.Constraint("DistanceX", 5, 2, 5, 1, Q("9 mm")),
    Sketcher.Constraint("DistanceX", 7, 1, 7, 2, Q("8 mm")),
    Sketcher.Constraint("DistanceX", 9, 2, 9, 1, Q("71 mm")),
    Sketcher.Constraint("DistanceY", 0, 2, 0, 1, Q("1 mm")),
    Sketcher.Constraint("DistanceY", 2, 1, 2, 2, Q("92 mm")),
    Sketcher.Constraint("DistanceY", 8, 1, 8, 2, Q("90 mm")),
])
pad19 = body.newObject("PartDesign::Pad", "Pad018")
pad19.Profile = sketch24
pad19.Length = 4
pad19.Reversed = True

# Sketch on XZ plane
sketch25 = body.newObject("Sketcher::SketchObject", "Sketch024")
sketch25.AttachmentSupport = (doc.getObject("XZ_Plane"), [""])
sketch25.MapMode = "FlatFace"
sketch25.addGeometry([
    Part.LineSegment(Vector(1, -91, 0), Vector(1, -85, 0)),  # 0
    Part.LineSegment(Vector(1, -85, 0), Vector(5, -85, 0)),  # 1
    Part.LineSegment(Vector(5, -85, 0), Vector(5, -91, 0)),  # 2
    Part.LineSegment(Vector(5, -91, 0), Vector(1, -91, 0)),  # 3
    Part.LineSegment(Vector(69, -91, 0), Vector(69, -86, 0)),  # 4
    Part.LineSegment(Vector(69, -86, 0), Vector(72, -86, 0)),  # 5
    Part.LineSegment(Vector(72, -86, 0), Vector(72, -91, 0)),  # 6
    Part.LineSegment(Vector(72, -91, 0), Vector(69, -91, 0)),  # 7
    Part.LineSegment(Vector(68, -8, 0), Vector(68, -1, 0)),  # 8
    Part.LineSegment(Vector(68, -1, 0), Vector(72, -1, 0)),  # 9
    Part.LineSegment(Vector(72, -1, 0), Vector(72, -8, 0)),  # 10
    Part.LineSegment(Vector(72, -8, 0), Vector(68, -8, 0)),  # 11
    Part.LineSegment(Vector(1, -8.5, 0), Vector(1, -1, 0)),  # 12
    Part.LineSegment(Vector(1, -1, 0), Vector(8, -1, 0)),  # 13
    Part.LineSegment(Vector(8, -1, 0), Vector(8, -8.5, 0)),  # 14
    Part.LineSegment(Vector(8, -8.5, 0), Vector(1, -8.5, 0)),  # 15
], False)
sketch25.addConstraint([
    Sketcher.Constraint("Coincident", 0, 2, 1, 1),
    Sketcher.Constraint("Coincident", 1, 2, 2, 1),
    Sketcher.Constraint("Coincident", 2, 2, 3, 1),
    Sketcher.Constraint("Coincident", 3, 2, 0, 1),
    Sketcher.Constraint("Coincident", 4, 2, 5, 1),
    Sketcher.Constraint("Coincident", 5, 2, 6, 1),
    Sketcher.Constraint("Coincident", 6, 2, 7, 1),
    Sketcher.Constraint("Coincident", 7, 2, 4, 1),
    Sketcher.Constraint("Coincident", 8, 2, 9, 1),
    Sketcher.Constraint("Coincident", 9, 2, 10, 1),
    Sketcher.Constraint("Coincident", 10, 2, 11, 1),
    Sketcher.Constraint("Coincident", 11, 2, 8, 1),
    Sketcher.Constraint("Coincident", 12, 2, 13, 1),
    Sketcher.Constraint("Coincident", 13, 2, 14, 1),
    Sketcher.Constraint("Coincident", 14, 2, 15, 1),
    Sketcher.Constraint("Coincident", 15, 2, 12, 1),
    Sketcher.Constraint("Vertical", 0),
    Sketcher.Constraint("Horizontal", 1),
    Sketcher.Constraint("Vertical", 2),
    Sketcher.Constraint("Horizontal", 3),
    Sketcher.Constraint("Vertical", 4),
    Sketcher.Constraint("Horizontal", 5),
    Sketcher.Constraint("Vertical", 6),
    Sketcher.Constraint("Horizontal", 7),
    Sketcher.Constraint("Vertical", 8),
    Sketcher.Constraint("Horizontal", 9),
    Sketcher.Constraint("Vertical", 10),
    Sketcher.Constraint("Horizontal", 11),
    Sketcher.Constraint("Vertical", 12),
    Sketcher.Constraint("Horizontal", 13),
    Sketcher.Constraint("Vertical", 14),
    Sketcher.Constraint("Horizontal", 15),
    Sketcher.Constraint("Horizontal", 3, 2, 6, 2),
    Sketcher.Constraint("Horizontal", 9, 2, 12, 2),
    Sketcher.Constraint("Vertical", 6, 2, 9, 2),
    Sketcher.Constraint("Vertical", 3, 2, 12, 2),
    Sketcher.Constraint("Equal", 3, 9),
    Sketcher.Constraint("Equal", 15, 8),
    Sketcher.Constraint("DistanceX", 1, 1, 1, 2, Q("4 mm")),
    Sketcher.Constraint("DistanceX", 5, 1, 5, 2, Q("3 mm")),
    Sketcher.Constraint("DistanceX", 13, 1, 13, 2, Q("7 mm")),
    Sketcher.Constraint("DistanceY", 0, 1, 0, 2, Q("6 mm")),
    Sketcher.Constraint("DistanceY", 4, 1, 4, 2, Q("5 mm")),
    Sketcher.Constraint("DistanceX", -1, 1, 0, 2, Q("1 mm")),
    Sketcher.Constraint("DistanceY", 0, 2, -1, 1, Q("85 mm")),
    Sketcher.Constraint("DistanceX", -1, 1, 4, 2, Q("69 mm")),
    Sketcher.Constraint("DistanceY", 8, 2, -1, 1, Q("1 mm")),
    Sketcher.Constraint("DistanceY", 12, 1, 12, 2, Q("7.50478 mm")),
])
pad20 = body.newObject("PartDesign::Pad", "Pad019")
pad20.Profile = sketch25
pad20.Length = 7
pad20.Reversed = True

# Sketch on XY plane
sketch26 = body.newObject("Sketcher::SketchObject", "Sketch025")
sketch26.AttachmentSupport = (doc.getObject("XY_Plane"), [""])
sketch26.MapMode = "FlatFace"
sketch26.addGeometry([
    Part.LineSegment(Vector(0, 1, 0), Vector(0, 0, 0)),
    Part.LineSegment(Vector(0, 0, 0), Vector(73, 0, 0)),
    Part.LineSegment(Vector(73, 0, 0), Vector(73, 1, 0)),
    Part.LineSegment(Vector(73, 1, 0), Vector(0, 1, 0)),
], False)
sketch26.addConstraint([
    Sketcher.Constraint("Coincident", 0, 2, 1, 1),
    Sketcher.Constraint("Coincident", 1, 2, 2, 1),
    Sketcher.Constraint("Coincident", 2, 2, 3, 1),
    Sketcher.Constraint("Coincident", 3, 2, 0, 1),
    Sketcher.Constraint("Vertical", 0),
    Sketcher.Constraint("Horizontal", 1),
    Sketcher.Constraint("Vertical", 2),
    Sketcher.Constraint("Horizontal", 3),
    Sketcher.Constraint("Coincident", 0, 2, -1, 1),
    Sketcher.Constraint("DistanceX", 1, 1, 1, 2, Q("73 mm")),
    Sketcher.Constraint("DistanceY", 0, 2, 0, 1, Q("1 mm")),
])
pocket6 = body.newObject("PartDesign::Pocket", "Pocket005")
pocket6.Profile = sketch26
pocket6.Length = 100

# Sketch on XY plane
sketch27 = body.newObject("Sketcher::SketchObject", "Sketch026")
sketch27.AttachmentSupport = (doc.getObject("XY_Plane"), [""])
sketch27.MapMode = "FlatFace"
sketch27.addGeometry([
    Part.LineSegment(Vector(0, 16, 0), Vector(0, 15, 0)),
    Part.LineSegment(Vector(0, 15, 0), Vector(73, 15, 0)),
    Part.LineSegment(Vector(73, 15, 0), Vector(73, 16, 0)),
    Part.LineSegment(Vector(73, 16, 0), Vector(0, 16, 0)),
], False)
sketch27.addConstraint([
    Sketcher.Constraint("Coincident", 0, 2, 1, 1),
    Sketcher.Constraint("Coincident", 1, 2, 2, 1),
    Sketcher.Constraint("Coincident", 2, 2, 3, 1),
    Sketcher.Constraint("Coincident", 3, 2, 0, 1),
    Sketcher.Constraint("Vertical", 0),
    Sketcher.Constraint("Horizontal", 1),
    Sketcher.Constraint("Vertical", 2),
    Sketcher.Constraint("Horizontal", 3),
    Sketcher.Constraint("PointOnObject", 0, 2, -2),
    Sketcher.Constraint("DistanceX", 1, 1, 1, 2, Q("73 mm")),
    Sketcher.Constraint("DistanceY", 0, 2, 0, 1, Q("1 mm")),
    Sketcher.Constraint("DistanceY", -1, 1, 0, 2, Q("15 mm")),
])
pocket7 = body.newObject("PartDesign::Pocket", "Pocket006")
pocket7.Profile = sketch27
pocket7.Length = 100

doc.recompute()
